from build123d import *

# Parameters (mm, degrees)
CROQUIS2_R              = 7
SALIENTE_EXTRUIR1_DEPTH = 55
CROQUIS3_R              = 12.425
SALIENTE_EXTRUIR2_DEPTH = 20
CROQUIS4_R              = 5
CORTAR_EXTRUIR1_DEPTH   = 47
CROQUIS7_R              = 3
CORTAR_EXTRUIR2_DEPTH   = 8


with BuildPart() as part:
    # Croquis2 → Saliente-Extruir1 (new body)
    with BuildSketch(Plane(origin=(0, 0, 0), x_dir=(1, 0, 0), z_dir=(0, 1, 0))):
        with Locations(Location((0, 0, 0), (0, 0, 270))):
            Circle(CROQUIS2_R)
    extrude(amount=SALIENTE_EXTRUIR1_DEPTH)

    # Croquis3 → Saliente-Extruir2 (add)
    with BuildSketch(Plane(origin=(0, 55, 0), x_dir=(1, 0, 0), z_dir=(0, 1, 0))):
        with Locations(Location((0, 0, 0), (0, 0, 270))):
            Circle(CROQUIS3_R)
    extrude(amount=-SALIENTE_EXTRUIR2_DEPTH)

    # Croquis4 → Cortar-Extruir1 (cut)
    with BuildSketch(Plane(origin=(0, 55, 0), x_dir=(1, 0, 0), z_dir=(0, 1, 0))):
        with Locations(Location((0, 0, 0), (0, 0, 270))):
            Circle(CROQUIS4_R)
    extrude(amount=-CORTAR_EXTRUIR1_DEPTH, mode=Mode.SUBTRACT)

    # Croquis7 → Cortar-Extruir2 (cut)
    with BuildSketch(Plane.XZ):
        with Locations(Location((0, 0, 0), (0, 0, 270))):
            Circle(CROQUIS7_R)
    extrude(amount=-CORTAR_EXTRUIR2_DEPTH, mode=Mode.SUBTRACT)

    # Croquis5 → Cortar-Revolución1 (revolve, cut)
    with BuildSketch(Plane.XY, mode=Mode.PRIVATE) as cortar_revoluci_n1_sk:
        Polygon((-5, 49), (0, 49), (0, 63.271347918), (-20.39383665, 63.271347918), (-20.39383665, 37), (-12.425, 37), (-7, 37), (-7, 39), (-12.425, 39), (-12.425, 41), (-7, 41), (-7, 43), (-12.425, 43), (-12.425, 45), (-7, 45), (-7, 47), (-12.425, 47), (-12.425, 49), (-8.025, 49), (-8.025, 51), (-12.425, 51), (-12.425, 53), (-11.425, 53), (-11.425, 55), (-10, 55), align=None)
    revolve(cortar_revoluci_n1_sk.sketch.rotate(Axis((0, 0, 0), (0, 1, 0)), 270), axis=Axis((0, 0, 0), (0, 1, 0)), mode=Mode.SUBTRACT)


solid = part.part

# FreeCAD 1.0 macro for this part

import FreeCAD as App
import Part
import Sketcher

V = App.Vector

doc = App.newDocument("Part")
body = doc.addObject("PartDesign::Body", "Body")

sketch1 = body.newObject("Sketcher::SketchObject", "Sketch")
sketch1.AttachmentSupport = (doc.getObject("XZ_Plane"), [""])
sketch1.MapMode = "FlatFace"
sketch1.addGeometry(Part.Circle(V(0, 0, 0), V(0, 0, 1), 7), False)
sketch1.addConstraint(Sketcher.Constraint("Coincident", 0, 3, -1, 1))
sketch1.addConstraint(Sketcher.Constraint("Diameter", 0, 14.0))
pad1 = body.newObject("PartDesign::Pad", "Pad")
pad1.Profile = sketch1
pad1.Length = 55
pad1.Reversed = True

sketch2 = body.newObject("Sketcher::SketchObject", "Sketch001")
sketch2.AttachmentSupport = (doc.getObject("XZ_Plane"), [""])
sketch2.MapMode = "FlatFace"
sketch2.AttachmentOffset = App.Placement(V(0, 0, -55), App.Rotation())
sketch2.addGeometry(Part.Circle(V(0, 0, 0), V(0, 0, 1), 12), False)
sketch2.addConstraint(Sketcher.Constraint("Coincident", 0, 3, -1, 1))
sketch2.addConstraint(Sketcher.Constraint("Diameter", 0, 24.85))
pad2 = body.newObject("PartDesign::Pad", "Pad001")
pad2.Profile = sketch2
pad2.Length = 20

sketch3 = body.newObject("Sketcher::SketchObject", "Sketch002")
sketch3.AttachmentSupport = (doc.getObject("XZ_Plane"), [""])
sketch3.MapMode = "FlatFace"
sketch3.AttachmentOffset = App.Placement(V(0, 0, -55), App.Rotation())
sketch3.addGeometry(Part.Circle(V(0, 0, 0), V(0, 0, 1), 5), False)
sketch3.addConstraint(Sketcher.Constraint("Coincident", 0, 3, -1, 1))
sketch3.addConstraint(Sketcher.Constraint("Diameter", 0, 10.0))
pocket1 = body.newObject("PartDesign::Pocket", "Pocket")
pocket1.Profile = sketch3
pocket1.Length = 47
pocket1.Reversed = True

sketch4 = body.newObject("Sketcher::SketchObject", "Sketch003")
sketch4.AttachmentSupport = (doc.getObject("XZ_Plane"), [""])
sketch4.MapMode = "FlatFace"
sketch4.addGeometry(Part.Circle(V(0, 0, 0), V(0, 0, 1), 3), False)
sketch4.addConstraint(Sketcher.Constraint("Coincident", 0, 3, -1, 1))
sketch4.addConstraint(Sketcher.Constraint("Diameter", 0, 6.0))
pocket2 = body.newObject("PartDesign::Pocket", "Pocket001")
pocket2.Profile = sketch4
pocket2.Length = 8

sketch5 = body.newObject("Sketcher::SketchObject", "Sketch004")
sketch5.AttachmentSupport = (doc.getObject("XY_Plane"), [""])
sketch5.MapMode = "FlatFace"
sketch5.addGeometry(Part.LineSegment(V(-5, 49, 0), V(0, 49, 0)), False)
sketch5.addGeometry(Part.LineSegment(V(0, 49, 0), V(0, 63.3, 0)), False)
sketch5.addGeometry(Part.LineSegment(V(0, 63.3, 0), V(-20.4, 63.3, 0)), False)
sketch5.addGeometry(Part.LineSegment(V(-20.4, 63.3, 0), V(-20.4, 37, 0)), False)
sketch5.addGeometry(Part.LineSegment(V(-20.4, 37, 0), V(-7, 37, 0)), False)
sketch5.addGeometry(Part.LineSegment(V(-7, 37, 0), V(-7, 39, 0)), False)
sketch5.addGeometry(Part.LineSegment(V(-7, 39, 0), V(-12.4, 39, 0)), False)
sketch5.addGeometry(Part.LineSegment(V(-12.4, 39, 0), V(-12.4, 41, 0)), False)
sketch5.addGeometry(Part.LineSegment(V(-12.4, 41, 0), V(-7, 41, 0)), False)
sketch5.addGeometry(Part.LineSegment(V(-7, 41, 0), V(-7, 43, 0)), False)
sketch5.addGeometry(Part.LineSegment(V(-7, 43, 0), V(-12.4, 43, 0)), False)
sketch5.addGeometry(Part.LineSegment(V(-12.4, 43, 0), V(-12.4, 45, 0)), False)
sketch5.addGeometry(Part.LineSegment(V(-12.4, 45, 0), V(-7, 45, 0)), False)
sketch5.addGeometry(Part.LineSegment(V(-7, 45, 0), V(-7, 47, 0)), False)
sketch5.addGeometry(Part.LineSegment(V(-7, 47, 0), V(-12.4, 47, 0)), False)
sketch5.addGeometry(Part.LineSegment(V(-12.4, 47, 0), V(-12.4, 49, 0)), False)
sketch5.addGeometry(Part.LineSegment(V(-12.4, 49, 0), V(-8, 49, 0)), False)
sketch5.addGeometry(Part.LineSegment(V(-8, 49, 0), V(-8, 51, 0)), False)
sketch5.addGeometry(Part.LineSegment(V(-8, 51, 0), V(-12.4, 51, 0)), False)
sketch5.addGeometry(Part.LineSegment(V(-12.4, 51, 0), V(-12.4, 53, 0)), False)
sketch5.addGeometry(Part.LineSegment(V(-12.4, 53, 0), V(-11.4, 53, 0)), False)
sketch5.addGeometry(Part.LineSegment(V(-11.4, 53, 0), V(-11.4, 55, 0)), False)
sketch5.addGeometry(Part.LineSegment(V(-11.4, 55, 0), V(-10, 55, 0)), False)
sketch5.addGeometry(Part.LineSegment(V(-10, 55, 0), V(-5, 49, 0)), False)
sketch5.addConstraint(Sketcher.Constraint("Coincident", 0, 2, 1, 1))
sketch5.addConstraint(Sketcher.Constraint("Coincident", 1, 2, 2, 1))
sketch5.addConstraint(Sketcher.Constraint("Coincident", 2, 2, 3, 1))
sketch5.addConstraint(Sketcher.Constraint("Coincident", 3, 2, 4, 1))
sketch5.addConstraint(Sketcher.Constraint("Coincident", 4, 2, 5, 1))
sketch5.addConstraint(Sketcher.Constraint("Coincident", 5, 2, 6, 1))
sketch5.addConstraint(Sketcher.Constraint("Coincident", 6, 2, 7, 1))
sketch5.addConstraint(Sketcher.Constraint("Coincident", 7, 2, 8, 1))
sketch5.addConstraint(Sketcher.Constraint("Coincident", 8, 2, 9, 1))
sketch5.addConstraint(Sketcher.Constraint("Coincident", 9, 2, 10, 1))
sketch5.addConstraint(Sketcher.Constraint("Coincident", 10, 2, 11, 1))
sketch5.addConstraint(Sketcher.Constraint("Coincident", 11, 2, 12, 1))
sketch5.addConstraint(Sketcher.Constraint("Coincident", 12, 2, 13, 1))
sketch5.addConstraint(Sketcher.Constraint("Coincident", 13, 2, 14, 1))
sketch5.addConstraint(Sketcher.Constraint("Coincident", 14, 2, 15, 1))
sketch5.addConstraint(Sketcher.Constraint("Coincident", 15, 2, 16, 1))
sketch5.addConstraint(Sketcher.Constraint("Coincident", 16, 2, 17, 1))
sketch5.addConstraint(Sketcher.Constraint("Coincident", 17, 2, 18, 1))
sketch5.addConstraint(Sketcher.Constraint("Coincident", 18, 2, 19, 1))
sketch5.addConstraint(Sketcher.Constraint("Coincident", 19, 2, 20, 1))
sketch5.addConstraint(Sketcher.Constraint("Coincident", 20, 2, 21, 1))
sketch5.addConstraint(Sketcher.Constraint("Coincident", 21, 2, 22, 1))
sketch5.addConstraint(Sketcher.Constraint("Coincident", 22, 2, 23, 1))
sketch5.addConstraint(Sketcher.Constraint("Coincident", 23, 2, 0, 1))
sketch5.addConstraint(Sketcher.Constraint("Horizontal", 0))
sketch5.addConstraint(Sketcher.Constraint("Vertical", 1))
sketch5.addConstraint(Sketcher.Constraint("Horizontal", 2))
sketch5.addConstraint(Sketcher.Constraint("Vertical", 3))
sketch5.addConstraint(Sketcher.Constraint("Horizontal", 4))
sketch5.addConstraint(Sketcher.Constraint("Vertical", 5))
sketch5.addConstraint(Sketcher.Constraint("Horizontal", 6))
sketch5.addConstraint(Sketcher.Constraint("Vertical", 7))
sketch5.addConstraint(Sketcher.Constraint("Horizontal", 8))
sketch5.addConstraint(Sketcher.Constraint("Vertical", 9))
sketch5.addConstraint(Sketcher.Constraint("Horizontal", 10))
sketch5.addConstraint(Sketcher.Constraint("Vertical", 11))
sketch5.addConstraint(Sketcher.Constraint("Horizontal", 12))
sketch5.addConstraint(Sketcher.Constraint("Vertical", 13))
sketch5.addConstraint(Sketcher.Constraint("Horizontal", 14))
sketch5.addConstraint(Sketcher.Constraint("Vertical", 15))
sketch5.addConstraint(Sketcher.Constraint("Horizontal", 16))
sketch5.addConstraint(Sketcher.Constraint("Vertical", 17))
sketch5.addConstraint(Sketcher.Constraint("Horizontal", 18))
sketch5.addConstraint(Sketcher.Constraint("Vertical", 19))
sketch5.addConstraint(Sketcher.Constraint("Horizontal", 20))
sketch5.addConstraint(Sketcher.Constraint("Vertical", 21))
sketch5.addConstraint(Sketcher.Constraint("Horizontal", 22))
sketch5.addConstraint(Sketcher.Constraint("PointOnObject", 0, 2, -2))
sketch5.addConstraint(Sketcher.Constraint("Horizontal", 0, 2, 15, 2))
sketch5.addConstraint(Sketcher.Constraint("Vertical", 5, 2, 8, 2))
sketch5.addConstraint(Sketcher.Constraint("Vertical", 7, 2, 10, 2))
sketch5.addConstraint(Sketcher.Constraint("Vertical", 9, 2, 12, 2))
sketch5.addConstraint(Sketcher.Constraint("Vertical", 11, 2, 14, 2))
sketch5.addConstraint(Sketcher.Constraint("Vertical", 15, 2, 18, 2))
sketch5.addConstraint(Sketcher.Constraint("Equal", 5, 7))
sketch5.addConstraint(Sketcher.Constraint("Equal", 7, 9))
sketch5.addConstraint(Sketcher.Constraint("Equal", 9, 11))
sketch5.addConstraint(Sketcher.Constraint("Equal", 11, 13))
sketch5.addConstraint(Sketcher.Constraint("Equal", 13, 15))
sketch5.addConstraint(Sketcher.Constraint("Equal", 15, 17))
sketch5.addConstraint(Sketcher.Constraint("Equal", 17, 19))
sketch5.addConstraint(Sketcher.Constraint("Equal", 19, 21))
sketch5.addConstraint(Sketcher.Constraint("DistanceX", 0, 1, 0, 2, 5.0))
sketch5.addConstraint(Sketcher.Constraint("DistanceX", 20, 1, 20, 2, 1.0))
sketch5.addConstraint(Sketcher.Constraint("DistanceY", 5, 1, 5, 2, 2.0))
sketch5.addConstraint(Sketcher.Constraint("DistanceX", 16, 1, 16, 2, 4.4))
sketch5.addConstraint(Sketcher.Constraint("DistanceY", -1, 1, 0, 2, 49.0))
sketch5.addConstraint(Sketcher.Constraint("DistanceX", 4, 2, -1, 1, 7.0))
sketch5.addConstraint(Sketcher.Constraint("DistanceX", 22, 2, -1, 1, 10.0))
sketch5.addConstraint(Sketcher.Constraint("DistanceX", 6, 2, 6, 1, 5.425))
sketch5.addConstraint(Sketcher.Constraint("DistanceX", 2, 2, 2, 1, 20.393837))
sketch5.addConstraint(Sketcher.Constraint("DistanceY", 1, 1, 1, 2, 14.271348))
groove = body.newObject("PartDesign::Groove", "Groove")
groove.Profile = sketch5
groove.ReferenceAxis = (sketch5, ["V_Axis"])
groove.Angle = 360

doc.recompute()
